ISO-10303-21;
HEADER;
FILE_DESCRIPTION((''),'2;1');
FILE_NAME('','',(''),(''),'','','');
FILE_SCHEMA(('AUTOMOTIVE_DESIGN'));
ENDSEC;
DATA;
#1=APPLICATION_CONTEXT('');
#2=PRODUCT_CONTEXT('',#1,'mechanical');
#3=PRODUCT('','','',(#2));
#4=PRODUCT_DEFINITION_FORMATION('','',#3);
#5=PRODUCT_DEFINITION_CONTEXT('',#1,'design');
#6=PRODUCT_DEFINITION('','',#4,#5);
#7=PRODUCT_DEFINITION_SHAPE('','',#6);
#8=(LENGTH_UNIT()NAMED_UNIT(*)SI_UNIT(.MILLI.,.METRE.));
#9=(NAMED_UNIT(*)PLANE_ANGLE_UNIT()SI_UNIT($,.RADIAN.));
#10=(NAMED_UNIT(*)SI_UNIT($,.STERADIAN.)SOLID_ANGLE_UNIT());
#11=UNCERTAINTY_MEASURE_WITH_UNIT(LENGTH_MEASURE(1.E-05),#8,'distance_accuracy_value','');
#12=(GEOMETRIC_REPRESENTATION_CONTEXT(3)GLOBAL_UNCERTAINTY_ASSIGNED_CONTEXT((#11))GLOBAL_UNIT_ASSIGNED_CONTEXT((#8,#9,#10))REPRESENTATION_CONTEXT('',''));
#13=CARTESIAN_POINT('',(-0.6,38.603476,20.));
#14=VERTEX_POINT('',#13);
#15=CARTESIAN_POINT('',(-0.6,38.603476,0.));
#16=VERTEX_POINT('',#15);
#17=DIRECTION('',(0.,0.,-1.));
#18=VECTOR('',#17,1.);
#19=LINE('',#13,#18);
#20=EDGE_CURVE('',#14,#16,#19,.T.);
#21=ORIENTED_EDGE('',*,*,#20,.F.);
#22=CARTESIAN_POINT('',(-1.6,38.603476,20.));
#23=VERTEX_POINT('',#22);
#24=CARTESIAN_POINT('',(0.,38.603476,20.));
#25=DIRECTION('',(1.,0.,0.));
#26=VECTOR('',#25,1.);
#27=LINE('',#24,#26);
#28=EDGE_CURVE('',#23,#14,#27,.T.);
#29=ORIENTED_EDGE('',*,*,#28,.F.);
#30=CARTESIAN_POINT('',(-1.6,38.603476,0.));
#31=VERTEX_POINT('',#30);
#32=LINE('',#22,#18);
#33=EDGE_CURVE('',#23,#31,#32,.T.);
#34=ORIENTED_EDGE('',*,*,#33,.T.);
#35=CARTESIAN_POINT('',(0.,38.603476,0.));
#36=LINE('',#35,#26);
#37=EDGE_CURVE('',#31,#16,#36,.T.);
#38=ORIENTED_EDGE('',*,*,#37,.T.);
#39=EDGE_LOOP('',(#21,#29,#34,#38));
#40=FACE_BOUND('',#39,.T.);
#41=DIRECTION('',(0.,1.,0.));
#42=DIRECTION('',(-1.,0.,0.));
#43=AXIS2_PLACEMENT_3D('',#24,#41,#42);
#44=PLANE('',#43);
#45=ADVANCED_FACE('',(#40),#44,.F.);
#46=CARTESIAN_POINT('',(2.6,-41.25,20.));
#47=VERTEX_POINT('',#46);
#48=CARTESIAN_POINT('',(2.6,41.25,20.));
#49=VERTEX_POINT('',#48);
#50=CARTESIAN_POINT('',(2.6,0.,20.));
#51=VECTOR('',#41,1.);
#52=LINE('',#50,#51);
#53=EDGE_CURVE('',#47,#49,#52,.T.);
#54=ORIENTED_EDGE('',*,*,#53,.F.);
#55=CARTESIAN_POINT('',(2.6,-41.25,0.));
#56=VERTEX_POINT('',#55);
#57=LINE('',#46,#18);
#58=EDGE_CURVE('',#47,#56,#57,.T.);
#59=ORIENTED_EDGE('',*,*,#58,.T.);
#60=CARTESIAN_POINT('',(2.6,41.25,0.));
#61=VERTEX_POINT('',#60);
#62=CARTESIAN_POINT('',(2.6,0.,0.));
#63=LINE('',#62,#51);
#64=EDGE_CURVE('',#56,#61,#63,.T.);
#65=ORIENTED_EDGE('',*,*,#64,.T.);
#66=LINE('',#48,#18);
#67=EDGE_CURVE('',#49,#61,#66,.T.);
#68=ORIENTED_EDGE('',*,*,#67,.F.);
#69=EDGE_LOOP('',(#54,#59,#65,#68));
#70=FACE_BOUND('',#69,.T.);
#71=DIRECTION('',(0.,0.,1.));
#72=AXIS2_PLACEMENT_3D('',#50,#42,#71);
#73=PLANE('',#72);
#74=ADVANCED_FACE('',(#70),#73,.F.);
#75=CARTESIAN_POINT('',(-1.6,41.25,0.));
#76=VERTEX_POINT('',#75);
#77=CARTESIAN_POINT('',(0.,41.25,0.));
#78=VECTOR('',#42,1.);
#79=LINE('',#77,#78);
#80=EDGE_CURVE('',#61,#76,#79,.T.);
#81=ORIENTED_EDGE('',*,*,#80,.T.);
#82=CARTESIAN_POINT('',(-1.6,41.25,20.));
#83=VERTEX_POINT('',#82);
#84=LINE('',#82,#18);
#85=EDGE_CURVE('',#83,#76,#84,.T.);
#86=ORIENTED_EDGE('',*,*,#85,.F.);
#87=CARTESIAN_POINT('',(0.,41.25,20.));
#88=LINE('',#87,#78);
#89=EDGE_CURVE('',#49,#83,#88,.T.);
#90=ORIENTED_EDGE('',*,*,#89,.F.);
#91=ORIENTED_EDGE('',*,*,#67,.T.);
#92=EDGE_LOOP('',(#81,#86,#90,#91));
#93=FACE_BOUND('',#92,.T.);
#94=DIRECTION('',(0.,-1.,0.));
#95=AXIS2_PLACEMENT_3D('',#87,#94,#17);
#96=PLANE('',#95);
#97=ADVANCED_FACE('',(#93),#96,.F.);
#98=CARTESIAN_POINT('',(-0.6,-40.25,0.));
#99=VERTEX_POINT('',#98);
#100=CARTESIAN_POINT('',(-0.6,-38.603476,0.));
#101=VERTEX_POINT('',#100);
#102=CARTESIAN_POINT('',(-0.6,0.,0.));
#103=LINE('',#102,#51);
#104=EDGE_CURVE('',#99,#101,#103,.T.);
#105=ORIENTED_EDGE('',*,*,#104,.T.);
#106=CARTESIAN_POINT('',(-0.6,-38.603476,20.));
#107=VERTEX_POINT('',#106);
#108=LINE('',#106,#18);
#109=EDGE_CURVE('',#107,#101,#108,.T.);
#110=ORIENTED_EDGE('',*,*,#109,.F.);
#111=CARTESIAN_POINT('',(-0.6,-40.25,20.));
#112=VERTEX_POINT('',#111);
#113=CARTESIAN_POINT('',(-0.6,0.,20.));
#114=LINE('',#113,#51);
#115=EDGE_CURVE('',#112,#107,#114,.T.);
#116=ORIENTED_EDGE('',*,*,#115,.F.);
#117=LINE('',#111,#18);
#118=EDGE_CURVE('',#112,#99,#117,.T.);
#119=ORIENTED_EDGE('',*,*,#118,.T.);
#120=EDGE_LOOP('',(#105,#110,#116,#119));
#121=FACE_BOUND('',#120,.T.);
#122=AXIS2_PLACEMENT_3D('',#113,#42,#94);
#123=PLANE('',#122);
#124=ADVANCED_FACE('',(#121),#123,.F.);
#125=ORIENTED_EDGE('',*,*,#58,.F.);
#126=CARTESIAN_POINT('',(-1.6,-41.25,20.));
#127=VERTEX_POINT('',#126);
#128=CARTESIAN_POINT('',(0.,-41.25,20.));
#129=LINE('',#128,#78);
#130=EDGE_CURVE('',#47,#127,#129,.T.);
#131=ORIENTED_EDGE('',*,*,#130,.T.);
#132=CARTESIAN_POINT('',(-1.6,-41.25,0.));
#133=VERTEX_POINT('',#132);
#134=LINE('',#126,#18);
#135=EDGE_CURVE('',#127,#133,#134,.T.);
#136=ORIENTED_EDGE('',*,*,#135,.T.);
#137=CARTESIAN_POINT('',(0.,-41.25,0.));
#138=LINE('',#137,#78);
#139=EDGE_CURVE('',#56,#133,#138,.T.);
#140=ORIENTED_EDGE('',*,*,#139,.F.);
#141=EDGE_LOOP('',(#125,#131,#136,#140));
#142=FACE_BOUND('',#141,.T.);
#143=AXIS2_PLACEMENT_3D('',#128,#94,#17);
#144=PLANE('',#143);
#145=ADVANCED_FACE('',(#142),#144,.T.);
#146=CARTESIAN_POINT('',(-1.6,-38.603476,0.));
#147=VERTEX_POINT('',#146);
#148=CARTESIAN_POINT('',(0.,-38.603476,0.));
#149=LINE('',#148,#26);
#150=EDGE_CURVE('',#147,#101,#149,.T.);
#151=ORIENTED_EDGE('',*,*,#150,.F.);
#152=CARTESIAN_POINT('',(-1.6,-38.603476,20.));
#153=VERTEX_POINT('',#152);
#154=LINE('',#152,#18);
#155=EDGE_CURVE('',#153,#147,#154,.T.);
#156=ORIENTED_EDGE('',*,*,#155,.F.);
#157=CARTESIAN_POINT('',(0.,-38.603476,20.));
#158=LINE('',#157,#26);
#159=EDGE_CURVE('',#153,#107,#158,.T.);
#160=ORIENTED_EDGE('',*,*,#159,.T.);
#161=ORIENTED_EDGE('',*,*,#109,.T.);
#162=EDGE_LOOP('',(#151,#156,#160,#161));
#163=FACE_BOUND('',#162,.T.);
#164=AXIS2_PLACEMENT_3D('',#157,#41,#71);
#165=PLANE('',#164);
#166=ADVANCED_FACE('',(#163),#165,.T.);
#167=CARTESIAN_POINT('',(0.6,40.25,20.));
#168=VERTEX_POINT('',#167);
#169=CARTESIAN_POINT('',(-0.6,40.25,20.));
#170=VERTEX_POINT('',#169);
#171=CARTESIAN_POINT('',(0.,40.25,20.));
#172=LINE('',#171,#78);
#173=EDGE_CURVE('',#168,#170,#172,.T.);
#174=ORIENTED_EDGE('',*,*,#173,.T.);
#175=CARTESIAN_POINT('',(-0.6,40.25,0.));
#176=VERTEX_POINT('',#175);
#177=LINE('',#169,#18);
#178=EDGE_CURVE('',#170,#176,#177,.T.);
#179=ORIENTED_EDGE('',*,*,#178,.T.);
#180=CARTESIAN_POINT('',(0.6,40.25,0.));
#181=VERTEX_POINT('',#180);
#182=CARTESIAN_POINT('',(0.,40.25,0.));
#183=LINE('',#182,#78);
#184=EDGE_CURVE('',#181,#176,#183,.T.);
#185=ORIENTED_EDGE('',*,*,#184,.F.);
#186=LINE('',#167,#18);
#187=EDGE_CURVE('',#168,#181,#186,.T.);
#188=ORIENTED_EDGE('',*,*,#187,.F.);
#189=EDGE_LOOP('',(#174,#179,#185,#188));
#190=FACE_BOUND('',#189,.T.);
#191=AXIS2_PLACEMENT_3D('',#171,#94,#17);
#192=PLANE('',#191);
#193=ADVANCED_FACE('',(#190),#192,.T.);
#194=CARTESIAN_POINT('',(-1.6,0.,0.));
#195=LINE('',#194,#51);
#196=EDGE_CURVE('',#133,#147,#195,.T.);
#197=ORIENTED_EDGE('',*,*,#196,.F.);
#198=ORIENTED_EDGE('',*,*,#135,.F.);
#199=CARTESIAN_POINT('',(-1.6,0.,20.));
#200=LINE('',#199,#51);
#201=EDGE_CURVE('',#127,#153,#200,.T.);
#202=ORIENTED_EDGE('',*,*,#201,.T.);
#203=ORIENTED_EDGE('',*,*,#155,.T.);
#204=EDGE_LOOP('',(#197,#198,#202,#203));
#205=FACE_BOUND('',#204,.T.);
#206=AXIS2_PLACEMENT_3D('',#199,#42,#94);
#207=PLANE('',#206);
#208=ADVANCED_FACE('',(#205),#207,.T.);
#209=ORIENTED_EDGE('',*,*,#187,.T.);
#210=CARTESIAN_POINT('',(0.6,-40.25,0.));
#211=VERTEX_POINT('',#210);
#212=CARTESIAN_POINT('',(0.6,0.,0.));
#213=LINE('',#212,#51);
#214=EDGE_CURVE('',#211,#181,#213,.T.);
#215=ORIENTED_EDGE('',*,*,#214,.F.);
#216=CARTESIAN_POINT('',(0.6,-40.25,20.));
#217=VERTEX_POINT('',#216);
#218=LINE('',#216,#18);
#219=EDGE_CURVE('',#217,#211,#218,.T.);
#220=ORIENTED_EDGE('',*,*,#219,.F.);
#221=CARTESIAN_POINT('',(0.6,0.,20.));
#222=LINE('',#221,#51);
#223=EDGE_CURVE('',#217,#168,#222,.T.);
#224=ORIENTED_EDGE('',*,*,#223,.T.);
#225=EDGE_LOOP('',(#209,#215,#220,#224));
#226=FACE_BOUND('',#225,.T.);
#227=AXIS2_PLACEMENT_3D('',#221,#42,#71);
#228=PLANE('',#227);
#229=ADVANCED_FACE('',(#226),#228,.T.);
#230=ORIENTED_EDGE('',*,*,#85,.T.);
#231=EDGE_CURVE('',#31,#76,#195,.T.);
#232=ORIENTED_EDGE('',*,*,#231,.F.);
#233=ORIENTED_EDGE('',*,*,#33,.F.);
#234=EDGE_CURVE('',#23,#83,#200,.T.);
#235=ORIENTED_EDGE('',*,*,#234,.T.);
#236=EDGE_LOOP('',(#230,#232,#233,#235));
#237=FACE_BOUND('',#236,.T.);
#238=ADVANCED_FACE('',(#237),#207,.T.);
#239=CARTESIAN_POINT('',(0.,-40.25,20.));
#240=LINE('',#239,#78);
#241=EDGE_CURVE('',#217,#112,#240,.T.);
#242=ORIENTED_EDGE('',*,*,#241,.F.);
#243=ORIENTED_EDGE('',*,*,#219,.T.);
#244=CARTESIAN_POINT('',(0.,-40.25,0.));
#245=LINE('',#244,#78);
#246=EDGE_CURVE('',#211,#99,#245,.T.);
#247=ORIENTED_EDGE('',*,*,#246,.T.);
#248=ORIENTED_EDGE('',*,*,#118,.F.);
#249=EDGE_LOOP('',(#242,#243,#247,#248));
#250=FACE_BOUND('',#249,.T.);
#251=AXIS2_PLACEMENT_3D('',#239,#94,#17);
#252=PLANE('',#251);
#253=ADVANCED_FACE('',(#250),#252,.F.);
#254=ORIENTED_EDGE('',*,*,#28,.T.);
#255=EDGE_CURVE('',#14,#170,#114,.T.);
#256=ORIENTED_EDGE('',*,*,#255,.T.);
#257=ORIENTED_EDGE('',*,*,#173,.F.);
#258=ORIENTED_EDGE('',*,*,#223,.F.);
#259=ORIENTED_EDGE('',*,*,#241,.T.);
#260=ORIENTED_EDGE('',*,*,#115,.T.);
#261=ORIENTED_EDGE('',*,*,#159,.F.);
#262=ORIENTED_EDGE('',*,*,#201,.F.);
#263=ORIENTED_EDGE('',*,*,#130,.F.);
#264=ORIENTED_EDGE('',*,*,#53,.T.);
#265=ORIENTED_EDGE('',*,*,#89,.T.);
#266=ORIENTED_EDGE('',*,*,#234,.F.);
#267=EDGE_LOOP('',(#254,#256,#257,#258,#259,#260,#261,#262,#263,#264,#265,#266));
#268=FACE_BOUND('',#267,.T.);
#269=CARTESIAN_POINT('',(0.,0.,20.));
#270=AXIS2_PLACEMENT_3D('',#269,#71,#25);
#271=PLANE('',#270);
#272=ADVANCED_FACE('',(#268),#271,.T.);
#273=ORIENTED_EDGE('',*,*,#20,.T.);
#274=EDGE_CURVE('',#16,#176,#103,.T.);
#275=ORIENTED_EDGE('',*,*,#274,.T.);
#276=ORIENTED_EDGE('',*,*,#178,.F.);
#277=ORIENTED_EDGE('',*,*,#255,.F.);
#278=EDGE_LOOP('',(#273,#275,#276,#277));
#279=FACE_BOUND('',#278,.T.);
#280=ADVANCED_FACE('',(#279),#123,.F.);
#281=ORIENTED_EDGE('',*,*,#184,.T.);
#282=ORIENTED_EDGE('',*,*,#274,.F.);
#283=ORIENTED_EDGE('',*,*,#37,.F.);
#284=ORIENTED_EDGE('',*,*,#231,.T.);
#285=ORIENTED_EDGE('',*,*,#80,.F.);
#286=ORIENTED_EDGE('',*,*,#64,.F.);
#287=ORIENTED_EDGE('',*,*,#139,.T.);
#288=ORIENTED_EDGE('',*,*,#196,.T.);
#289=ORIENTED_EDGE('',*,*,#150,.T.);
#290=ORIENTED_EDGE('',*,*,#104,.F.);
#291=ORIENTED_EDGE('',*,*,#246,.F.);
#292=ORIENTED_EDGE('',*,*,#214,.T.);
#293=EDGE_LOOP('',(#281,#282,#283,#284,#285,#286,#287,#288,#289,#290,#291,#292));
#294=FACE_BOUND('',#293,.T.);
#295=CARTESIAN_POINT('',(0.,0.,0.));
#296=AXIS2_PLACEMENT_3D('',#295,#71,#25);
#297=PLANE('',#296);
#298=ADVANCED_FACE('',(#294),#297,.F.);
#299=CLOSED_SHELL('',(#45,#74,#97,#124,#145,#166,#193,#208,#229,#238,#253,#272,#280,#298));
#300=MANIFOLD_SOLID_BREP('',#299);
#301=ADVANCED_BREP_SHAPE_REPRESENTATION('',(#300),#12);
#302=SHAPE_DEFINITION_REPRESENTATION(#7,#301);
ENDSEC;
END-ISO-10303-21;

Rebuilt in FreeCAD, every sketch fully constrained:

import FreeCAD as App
import Part
import Sketcher

V = App.Vector
Q = App.Units.Quantity

doc = App.newDocument("Part")
body = doc.addObject("PartDesign::Body", "Body")

sketch1 = body.newObject("Sketcher::SketchObject", "Sketch")
sketch1.AttachmentSupport = (doc.getObject("XY_Plane"), [""])
sketch1.MapMode = "FlatFace"
sketch1.addGeometry([
    Part.LineSegment(V(-1.6, -38.6, 0), V(-1.6, -41.2, 0)),
    Part.LineSegment(V(-1.6, -41.2, 0), V(2.6, -41.2, 0)),
    Part.LineSegment(V(2.6, -41.2, 0), V(2.6, 41.2, 0)),
    Part.LineSegment(V(2.6, 41.2, 0), V(-1.6, 41.2, 0)),
    Part.LineSegment(V(-1.6, 41.2, 0), V(-1.6, 38.6, 0)),
    Part.LineSegment(V(-1.6, 38.6, 0), V(-0.6, 38.6, 0)),
    Part.LineSegment(V(-0.6, 38.6, 0), V(-0.6, 40.2, 0)),
    Part.LineSegment(V(-0.6, 40.2, 0), V(0.6, 40.2, 0)),
    Part.LineSegment(V(0.6, 40.2, 0), V(0.6, -40.2, 0)),
    Part.LineSegment(V(0.6, -40.2, 0), V(-0.6, -40.2, 0)),
    Part.LineSegment(V(-0.6, -40.2, 0), V(-0.6, -38.6, 0)),
    Part.LineSegment(V(-0.6, -38.6, 0), V(-1.6, -38.6, 0)),
], False)
sketch1.addConstraint([
    Sketcher.Constraint("Coincident", 0, 2, 1, 1),
    Sketcher.Constraint("Coincident", 1, 2, 2, 1),
    Sketcher.Constraint("Coincident", 2, 2, 3, 1),
    Sketcher.Constraint("Coincident", 3, 2, 4, 1),
    Sketcher.Constraint("Coincident", 4, 2, 5, 1),
    Sketcher.Constraint("Coincident", 5, 2, 6, 1),
    Sketcher.Constraint("Coincident", 6, 2, 7, 1),
    Sketcher.Constraint("Coincident", 7, 2, 8, 1),
    Sketcher.Constraint("Coincident", 8, 2, 9, 1),
    Sketcher.Constraint("Coincident", 9, 2, 10, 1),
    Sketcher.Constraint("Coincident", 10, 2, 11, 1),
    Sketcher.Constraint("Coincident", 11, 2, 0, 1),
    Sketcher.Constraint("Vertical", 0),
    Sketcher.Constraint("Horizontal", 1),
    Sketcher.Constraint("Vertical", 2),
    Sketcher.Constraint("Horizontal", 3),
    Sketcher.Constraint("Vertical", 4),
    Sketcher.Constraint("Horizontal", 5),
    Sketcher.Constraint("Vertical", 6),
    Sketcher.Constraint("Horizontal", 7),
    Sketcher.Constraint("Vertical", 8),
    Sketcher.Constraint("Horizontal", 9),
    Sketcher.Constraint("Vertical", 10),
    Sketcher.Constraint("Horizontal", 11),
    Sketcher.Constraint("Symmetric", 6, 2, 8, 2, -1, 1),
    Sketcher.Constraint("Symmetric", 0, 2, 3, 2, -1),
    Sketcher.Constraint("Symmetric", 5, 2, 10, 2, -1),
    Sketcher.Constraint("DistanceX", 5, 1, 5, 2, Q("1 mm")),
    Sketcher.Constraint("DistanceX", 1, 1, 1, 2, Q("4.2 mm")),
    Sketcher.Constraint("DistanceX", 7, 1, 7, 2, Q("1.2 mm")),
    Sketcher.Constraint("DistanceY", 2, 1, 2, 2, Q("82.5 mm")),
    Sketcher.Constraint("DistanceY", 8, 2, 8, 1, Q("80.5 mm")),
    Sketcher.Constraint("DistanceY", 0, 2, 0, 1, Q("2.646524 mm")),
])
pad1 = body.newObject("PartDesign::Pad", "Pad")
pad1.Profile = sketch1
pad1.Length = 20

doc.recompute()
